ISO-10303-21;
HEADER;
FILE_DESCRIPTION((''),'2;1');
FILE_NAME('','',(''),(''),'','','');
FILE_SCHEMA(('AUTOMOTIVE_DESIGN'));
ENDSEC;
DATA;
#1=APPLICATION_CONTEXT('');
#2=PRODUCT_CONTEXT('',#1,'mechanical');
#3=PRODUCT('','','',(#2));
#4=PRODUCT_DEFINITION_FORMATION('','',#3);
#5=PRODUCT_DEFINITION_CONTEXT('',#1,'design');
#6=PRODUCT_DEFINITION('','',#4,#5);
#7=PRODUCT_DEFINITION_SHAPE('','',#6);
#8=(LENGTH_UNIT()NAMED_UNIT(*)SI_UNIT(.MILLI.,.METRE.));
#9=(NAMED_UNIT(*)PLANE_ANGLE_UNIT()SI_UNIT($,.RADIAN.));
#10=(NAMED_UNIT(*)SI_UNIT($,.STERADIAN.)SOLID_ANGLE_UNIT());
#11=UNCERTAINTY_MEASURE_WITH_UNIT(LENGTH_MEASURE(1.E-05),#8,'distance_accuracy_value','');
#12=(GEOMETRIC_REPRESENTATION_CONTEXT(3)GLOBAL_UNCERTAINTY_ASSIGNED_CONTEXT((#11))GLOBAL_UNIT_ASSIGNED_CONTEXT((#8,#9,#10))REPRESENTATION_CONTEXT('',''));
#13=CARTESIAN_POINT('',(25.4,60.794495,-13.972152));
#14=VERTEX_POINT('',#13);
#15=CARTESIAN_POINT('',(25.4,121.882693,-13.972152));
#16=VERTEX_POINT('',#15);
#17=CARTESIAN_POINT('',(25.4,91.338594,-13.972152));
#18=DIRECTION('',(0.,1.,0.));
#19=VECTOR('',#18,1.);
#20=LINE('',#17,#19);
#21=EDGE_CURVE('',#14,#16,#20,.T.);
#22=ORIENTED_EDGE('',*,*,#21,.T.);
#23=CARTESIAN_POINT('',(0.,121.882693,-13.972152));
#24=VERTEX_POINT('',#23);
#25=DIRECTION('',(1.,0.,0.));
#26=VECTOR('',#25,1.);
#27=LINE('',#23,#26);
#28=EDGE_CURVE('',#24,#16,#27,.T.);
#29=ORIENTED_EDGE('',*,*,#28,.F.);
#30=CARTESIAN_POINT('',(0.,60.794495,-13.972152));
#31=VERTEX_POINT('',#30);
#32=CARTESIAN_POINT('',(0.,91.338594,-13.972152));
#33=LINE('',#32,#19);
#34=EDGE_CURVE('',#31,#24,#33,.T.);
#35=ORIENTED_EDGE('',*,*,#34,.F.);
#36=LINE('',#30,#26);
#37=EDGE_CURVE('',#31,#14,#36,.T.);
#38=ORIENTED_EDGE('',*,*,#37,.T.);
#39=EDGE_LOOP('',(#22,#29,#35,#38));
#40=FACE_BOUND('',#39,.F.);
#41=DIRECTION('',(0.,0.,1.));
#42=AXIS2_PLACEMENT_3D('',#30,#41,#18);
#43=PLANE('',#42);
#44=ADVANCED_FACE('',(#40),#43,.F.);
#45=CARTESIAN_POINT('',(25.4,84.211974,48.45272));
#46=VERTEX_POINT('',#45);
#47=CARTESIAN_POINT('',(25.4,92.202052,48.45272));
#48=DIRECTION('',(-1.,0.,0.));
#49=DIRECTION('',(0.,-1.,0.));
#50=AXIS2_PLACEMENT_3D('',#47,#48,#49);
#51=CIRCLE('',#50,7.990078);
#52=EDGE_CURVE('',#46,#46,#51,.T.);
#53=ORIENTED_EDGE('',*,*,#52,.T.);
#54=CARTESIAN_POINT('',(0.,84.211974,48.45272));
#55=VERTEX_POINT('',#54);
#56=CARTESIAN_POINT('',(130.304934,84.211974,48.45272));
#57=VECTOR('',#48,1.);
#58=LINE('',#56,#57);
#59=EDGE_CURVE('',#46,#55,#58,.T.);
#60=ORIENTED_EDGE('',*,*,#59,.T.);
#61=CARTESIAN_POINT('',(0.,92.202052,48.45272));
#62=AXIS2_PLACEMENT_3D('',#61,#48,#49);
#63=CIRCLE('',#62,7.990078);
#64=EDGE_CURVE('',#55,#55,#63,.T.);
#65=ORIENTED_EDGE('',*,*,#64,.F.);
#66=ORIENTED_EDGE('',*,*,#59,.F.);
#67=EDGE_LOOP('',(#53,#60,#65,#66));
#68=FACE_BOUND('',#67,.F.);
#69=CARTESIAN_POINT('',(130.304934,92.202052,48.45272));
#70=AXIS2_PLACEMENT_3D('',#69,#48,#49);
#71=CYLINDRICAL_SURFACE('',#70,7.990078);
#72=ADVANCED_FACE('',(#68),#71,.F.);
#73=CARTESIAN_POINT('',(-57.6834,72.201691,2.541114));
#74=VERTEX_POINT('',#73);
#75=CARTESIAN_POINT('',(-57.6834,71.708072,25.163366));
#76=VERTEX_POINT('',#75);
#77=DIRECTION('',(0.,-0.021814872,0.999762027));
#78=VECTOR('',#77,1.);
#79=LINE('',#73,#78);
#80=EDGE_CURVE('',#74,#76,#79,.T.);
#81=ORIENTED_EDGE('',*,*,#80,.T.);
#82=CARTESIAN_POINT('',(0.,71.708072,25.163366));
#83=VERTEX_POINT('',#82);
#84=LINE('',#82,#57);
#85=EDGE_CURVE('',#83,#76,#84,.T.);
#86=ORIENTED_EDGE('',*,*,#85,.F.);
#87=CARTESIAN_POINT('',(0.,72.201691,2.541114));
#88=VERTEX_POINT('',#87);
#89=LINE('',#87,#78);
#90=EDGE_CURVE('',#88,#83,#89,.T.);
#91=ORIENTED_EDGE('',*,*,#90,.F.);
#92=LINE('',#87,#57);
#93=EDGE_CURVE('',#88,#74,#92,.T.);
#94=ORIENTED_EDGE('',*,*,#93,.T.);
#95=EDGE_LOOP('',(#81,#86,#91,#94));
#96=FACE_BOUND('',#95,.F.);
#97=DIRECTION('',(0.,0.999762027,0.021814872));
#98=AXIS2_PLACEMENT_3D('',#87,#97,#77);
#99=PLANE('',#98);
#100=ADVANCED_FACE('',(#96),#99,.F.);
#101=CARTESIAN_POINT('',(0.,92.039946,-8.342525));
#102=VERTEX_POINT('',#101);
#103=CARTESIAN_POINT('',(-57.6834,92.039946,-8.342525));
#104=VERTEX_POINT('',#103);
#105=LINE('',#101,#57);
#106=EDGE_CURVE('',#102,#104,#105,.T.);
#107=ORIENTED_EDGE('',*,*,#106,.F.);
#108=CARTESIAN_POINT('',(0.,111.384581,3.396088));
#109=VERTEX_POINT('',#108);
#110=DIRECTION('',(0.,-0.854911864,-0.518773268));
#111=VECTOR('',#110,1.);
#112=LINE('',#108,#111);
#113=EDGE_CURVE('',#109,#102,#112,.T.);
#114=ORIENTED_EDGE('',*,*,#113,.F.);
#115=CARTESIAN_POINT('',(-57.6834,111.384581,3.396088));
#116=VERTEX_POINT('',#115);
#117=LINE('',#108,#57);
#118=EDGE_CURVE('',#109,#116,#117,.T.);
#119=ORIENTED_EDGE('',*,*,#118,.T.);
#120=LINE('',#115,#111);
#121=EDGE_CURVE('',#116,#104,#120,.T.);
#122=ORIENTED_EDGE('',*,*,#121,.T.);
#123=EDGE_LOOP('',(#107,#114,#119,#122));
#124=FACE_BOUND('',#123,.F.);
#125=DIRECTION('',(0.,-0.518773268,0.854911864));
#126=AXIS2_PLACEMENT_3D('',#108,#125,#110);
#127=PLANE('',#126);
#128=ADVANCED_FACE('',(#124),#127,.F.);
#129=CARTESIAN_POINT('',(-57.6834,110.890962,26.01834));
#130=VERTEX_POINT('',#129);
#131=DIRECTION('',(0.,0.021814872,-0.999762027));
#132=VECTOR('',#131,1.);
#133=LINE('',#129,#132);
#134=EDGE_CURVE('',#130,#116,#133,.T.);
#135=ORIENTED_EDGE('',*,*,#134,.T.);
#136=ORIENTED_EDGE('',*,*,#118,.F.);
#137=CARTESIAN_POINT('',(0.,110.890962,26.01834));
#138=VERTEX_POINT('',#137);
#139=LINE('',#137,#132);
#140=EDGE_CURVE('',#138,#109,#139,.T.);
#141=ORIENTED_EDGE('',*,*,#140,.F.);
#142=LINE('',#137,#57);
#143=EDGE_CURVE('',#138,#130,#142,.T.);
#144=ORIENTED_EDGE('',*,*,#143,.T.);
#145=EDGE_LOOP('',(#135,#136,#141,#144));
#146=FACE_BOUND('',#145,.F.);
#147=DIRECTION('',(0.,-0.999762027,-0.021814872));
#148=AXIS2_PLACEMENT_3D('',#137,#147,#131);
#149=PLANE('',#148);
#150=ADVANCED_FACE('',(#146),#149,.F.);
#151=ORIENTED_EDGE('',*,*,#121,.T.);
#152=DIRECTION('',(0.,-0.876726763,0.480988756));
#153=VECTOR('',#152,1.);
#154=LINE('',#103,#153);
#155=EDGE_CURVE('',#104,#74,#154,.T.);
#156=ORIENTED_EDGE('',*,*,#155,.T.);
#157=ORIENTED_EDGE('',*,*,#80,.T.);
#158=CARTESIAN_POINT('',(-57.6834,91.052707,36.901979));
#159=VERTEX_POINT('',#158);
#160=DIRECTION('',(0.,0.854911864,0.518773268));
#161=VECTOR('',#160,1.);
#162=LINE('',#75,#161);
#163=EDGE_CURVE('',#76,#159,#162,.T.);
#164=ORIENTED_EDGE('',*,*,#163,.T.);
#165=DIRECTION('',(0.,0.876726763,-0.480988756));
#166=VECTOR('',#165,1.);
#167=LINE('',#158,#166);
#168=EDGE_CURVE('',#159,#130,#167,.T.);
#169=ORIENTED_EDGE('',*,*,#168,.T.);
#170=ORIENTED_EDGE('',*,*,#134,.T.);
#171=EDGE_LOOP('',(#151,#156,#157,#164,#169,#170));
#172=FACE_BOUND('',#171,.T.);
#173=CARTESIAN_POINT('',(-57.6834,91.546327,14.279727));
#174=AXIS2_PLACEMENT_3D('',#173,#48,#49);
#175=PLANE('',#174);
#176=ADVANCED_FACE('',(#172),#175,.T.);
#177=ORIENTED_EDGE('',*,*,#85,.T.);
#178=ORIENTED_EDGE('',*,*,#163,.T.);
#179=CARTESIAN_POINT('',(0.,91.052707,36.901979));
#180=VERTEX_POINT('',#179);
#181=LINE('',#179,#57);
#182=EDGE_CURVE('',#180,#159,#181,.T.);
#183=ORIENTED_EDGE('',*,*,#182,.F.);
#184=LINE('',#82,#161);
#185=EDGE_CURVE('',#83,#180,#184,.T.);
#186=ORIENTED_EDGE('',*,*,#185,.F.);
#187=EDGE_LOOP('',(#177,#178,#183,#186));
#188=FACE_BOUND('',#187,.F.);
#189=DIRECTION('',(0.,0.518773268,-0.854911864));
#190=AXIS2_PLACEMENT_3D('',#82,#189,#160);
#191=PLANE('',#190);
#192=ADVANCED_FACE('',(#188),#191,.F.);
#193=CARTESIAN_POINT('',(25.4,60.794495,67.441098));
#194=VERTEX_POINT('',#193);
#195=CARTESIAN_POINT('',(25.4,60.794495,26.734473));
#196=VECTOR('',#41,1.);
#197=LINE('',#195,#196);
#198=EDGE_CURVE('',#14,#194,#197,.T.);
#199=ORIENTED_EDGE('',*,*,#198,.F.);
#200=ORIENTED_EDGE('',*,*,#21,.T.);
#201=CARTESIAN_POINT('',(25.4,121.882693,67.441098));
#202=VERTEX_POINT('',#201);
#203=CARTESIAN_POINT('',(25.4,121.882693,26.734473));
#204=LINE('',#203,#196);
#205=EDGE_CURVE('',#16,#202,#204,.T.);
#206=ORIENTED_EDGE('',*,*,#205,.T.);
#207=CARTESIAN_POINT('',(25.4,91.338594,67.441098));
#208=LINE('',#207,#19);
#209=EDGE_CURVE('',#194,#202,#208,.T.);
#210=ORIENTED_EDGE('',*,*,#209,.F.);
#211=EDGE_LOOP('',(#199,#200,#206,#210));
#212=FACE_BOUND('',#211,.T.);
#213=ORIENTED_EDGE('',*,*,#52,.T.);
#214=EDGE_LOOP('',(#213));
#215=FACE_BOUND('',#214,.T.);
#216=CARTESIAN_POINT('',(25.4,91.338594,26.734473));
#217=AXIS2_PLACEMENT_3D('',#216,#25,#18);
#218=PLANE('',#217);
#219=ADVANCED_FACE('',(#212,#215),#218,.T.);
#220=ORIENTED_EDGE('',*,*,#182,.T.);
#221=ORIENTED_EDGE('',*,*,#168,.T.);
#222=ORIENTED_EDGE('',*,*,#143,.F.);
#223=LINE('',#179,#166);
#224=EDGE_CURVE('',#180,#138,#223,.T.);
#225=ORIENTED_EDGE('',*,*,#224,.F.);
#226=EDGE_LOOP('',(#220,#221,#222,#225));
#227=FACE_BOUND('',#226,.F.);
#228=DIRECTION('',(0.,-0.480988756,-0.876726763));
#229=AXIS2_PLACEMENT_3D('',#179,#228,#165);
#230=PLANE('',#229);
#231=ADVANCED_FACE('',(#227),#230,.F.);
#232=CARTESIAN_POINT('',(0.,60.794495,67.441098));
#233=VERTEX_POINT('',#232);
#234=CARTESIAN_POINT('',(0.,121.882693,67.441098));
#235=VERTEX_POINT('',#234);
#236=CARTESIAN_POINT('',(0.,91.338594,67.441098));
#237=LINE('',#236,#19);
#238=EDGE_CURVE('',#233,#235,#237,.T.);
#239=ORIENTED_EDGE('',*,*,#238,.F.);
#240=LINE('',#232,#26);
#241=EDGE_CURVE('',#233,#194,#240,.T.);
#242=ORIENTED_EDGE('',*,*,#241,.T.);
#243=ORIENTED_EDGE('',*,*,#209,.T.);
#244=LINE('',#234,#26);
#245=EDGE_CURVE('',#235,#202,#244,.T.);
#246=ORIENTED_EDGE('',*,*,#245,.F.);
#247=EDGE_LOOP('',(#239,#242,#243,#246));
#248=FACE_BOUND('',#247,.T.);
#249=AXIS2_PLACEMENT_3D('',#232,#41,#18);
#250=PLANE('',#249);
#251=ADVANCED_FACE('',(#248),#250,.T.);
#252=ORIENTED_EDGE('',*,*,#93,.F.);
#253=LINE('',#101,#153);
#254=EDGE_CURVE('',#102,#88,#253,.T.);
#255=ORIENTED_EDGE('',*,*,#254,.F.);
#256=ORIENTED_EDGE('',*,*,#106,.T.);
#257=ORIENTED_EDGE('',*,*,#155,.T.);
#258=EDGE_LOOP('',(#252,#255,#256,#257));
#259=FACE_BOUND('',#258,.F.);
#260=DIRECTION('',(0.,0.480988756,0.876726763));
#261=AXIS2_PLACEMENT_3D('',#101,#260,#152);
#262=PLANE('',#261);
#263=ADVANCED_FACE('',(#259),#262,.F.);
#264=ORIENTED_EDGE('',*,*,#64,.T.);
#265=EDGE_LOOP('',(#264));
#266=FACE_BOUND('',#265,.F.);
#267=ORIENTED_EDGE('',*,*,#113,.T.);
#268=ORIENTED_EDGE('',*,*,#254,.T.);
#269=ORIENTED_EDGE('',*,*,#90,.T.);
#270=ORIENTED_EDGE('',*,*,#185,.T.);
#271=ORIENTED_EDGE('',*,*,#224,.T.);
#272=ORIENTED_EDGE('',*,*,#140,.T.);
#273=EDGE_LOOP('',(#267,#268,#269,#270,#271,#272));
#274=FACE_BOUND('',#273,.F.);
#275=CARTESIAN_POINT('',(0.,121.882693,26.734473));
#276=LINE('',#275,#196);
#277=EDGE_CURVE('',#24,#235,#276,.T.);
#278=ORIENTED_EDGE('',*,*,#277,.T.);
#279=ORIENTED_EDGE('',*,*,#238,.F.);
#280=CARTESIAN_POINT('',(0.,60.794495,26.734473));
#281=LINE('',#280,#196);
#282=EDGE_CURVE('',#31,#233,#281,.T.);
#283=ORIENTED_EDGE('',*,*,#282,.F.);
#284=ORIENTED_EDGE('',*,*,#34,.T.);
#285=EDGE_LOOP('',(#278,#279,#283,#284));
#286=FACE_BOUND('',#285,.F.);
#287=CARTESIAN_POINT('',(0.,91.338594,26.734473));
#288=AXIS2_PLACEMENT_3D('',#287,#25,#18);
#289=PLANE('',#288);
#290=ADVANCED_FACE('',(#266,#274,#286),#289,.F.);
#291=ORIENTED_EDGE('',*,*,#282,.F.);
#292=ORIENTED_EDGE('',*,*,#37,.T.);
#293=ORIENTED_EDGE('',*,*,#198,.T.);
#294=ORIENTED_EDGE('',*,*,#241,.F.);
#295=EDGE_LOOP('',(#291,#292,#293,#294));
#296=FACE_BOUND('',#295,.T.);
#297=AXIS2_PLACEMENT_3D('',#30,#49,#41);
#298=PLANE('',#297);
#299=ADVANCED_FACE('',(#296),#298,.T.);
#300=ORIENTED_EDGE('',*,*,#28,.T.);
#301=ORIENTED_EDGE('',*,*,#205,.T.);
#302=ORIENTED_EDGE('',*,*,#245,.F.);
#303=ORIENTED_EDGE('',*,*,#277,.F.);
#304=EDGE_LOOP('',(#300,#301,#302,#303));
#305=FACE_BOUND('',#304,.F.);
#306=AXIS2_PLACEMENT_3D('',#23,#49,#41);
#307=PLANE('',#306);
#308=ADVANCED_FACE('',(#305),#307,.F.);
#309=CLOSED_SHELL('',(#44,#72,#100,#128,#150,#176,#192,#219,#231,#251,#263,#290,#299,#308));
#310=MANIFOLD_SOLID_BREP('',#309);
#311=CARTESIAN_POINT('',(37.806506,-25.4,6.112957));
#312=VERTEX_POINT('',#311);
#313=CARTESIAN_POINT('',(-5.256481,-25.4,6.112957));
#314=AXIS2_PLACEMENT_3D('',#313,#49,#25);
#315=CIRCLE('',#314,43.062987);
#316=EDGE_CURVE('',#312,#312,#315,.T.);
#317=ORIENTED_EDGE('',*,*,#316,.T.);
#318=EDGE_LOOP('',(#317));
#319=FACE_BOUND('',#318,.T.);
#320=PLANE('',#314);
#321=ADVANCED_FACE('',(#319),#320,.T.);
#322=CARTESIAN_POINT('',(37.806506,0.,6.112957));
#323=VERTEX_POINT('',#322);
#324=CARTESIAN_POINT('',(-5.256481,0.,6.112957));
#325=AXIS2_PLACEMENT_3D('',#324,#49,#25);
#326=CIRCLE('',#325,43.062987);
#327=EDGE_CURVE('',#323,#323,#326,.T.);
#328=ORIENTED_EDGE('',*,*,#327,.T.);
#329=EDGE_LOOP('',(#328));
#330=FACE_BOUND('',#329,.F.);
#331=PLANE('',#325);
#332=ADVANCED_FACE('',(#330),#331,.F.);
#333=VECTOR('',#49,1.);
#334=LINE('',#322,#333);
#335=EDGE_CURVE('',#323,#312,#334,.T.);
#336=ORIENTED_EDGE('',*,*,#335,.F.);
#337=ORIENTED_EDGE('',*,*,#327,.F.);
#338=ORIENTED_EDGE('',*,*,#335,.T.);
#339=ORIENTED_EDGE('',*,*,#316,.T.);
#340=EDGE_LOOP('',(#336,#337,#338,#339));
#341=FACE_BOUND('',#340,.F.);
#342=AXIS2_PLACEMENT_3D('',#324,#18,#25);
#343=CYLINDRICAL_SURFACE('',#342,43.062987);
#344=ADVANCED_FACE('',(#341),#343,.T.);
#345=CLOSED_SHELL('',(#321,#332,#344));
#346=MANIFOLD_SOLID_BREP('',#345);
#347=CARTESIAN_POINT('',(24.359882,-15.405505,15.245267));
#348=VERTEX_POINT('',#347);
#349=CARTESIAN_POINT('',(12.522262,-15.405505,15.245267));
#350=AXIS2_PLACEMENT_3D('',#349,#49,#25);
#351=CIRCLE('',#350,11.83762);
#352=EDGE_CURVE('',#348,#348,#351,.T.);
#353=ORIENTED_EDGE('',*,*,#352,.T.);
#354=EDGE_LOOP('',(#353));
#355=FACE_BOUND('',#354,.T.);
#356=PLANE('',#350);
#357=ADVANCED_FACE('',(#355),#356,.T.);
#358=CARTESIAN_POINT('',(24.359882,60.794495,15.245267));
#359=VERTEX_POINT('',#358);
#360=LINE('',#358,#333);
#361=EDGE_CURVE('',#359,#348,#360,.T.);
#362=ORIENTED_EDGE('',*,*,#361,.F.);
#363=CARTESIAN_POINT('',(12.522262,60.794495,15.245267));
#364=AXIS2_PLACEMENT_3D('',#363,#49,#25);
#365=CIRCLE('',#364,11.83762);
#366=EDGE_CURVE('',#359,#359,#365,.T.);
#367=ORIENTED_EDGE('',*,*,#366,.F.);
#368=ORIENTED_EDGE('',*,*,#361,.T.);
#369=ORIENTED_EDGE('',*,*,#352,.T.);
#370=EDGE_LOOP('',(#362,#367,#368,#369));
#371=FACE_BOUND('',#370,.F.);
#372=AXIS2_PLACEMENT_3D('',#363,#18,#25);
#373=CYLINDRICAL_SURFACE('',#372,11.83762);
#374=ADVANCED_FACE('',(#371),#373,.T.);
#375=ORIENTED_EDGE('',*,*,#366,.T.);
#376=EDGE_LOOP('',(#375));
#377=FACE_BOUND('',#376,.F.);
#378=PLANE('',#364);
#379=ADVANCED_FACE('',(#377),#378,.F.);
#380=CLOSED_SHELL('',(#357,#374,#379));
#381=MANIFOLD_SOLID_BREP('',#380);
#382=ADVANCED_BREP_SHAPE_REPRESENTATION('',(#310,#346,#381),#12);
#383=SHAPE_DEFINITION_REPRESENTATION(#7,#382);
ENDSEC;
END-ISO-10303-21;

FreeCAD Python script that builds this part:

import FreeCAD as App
import Part
import Sketcher

V = App.Vector
Q = App.Units.Quantity

doc = App.newDocument("Part")
body = doc.addObject("PartDesign::Body", "Body")

sketch1 = body.newObject("Sketcher::SketchObject", "Sketch")
sketch1.AttachmentSupport = (doc.getObject("XZ_Plane"), [""])
sketch1.MapMode = "FlatFace"
sketch1.addGeometry(Part.Circle(V(-5, 6, 0), V(0, 0, 1), 43), False)
sketch1.addConstraint([
    Sketcher.Constraint("Diameter", 0, Q("86.125974 mm")),
    Sketcher.Constraint("DistanceX", 0, 3, -1, 1, Q("5.256481 mm")),
    Sketcher.Constraint("DistanceY", -1, 1, 0, 3, Q("6.112957 mm")),
])
pad1 = body.newObject("PartDesign::Pad", "Pad")
pad1.Profile = sketch1
pad1.Length = Q("1 in")
body2 = doc.addObject("PartDesign::Body", "Body001")

sketch2 = body2.newObject("Sketcher::SketchObject", "Sketch001")
sketch2.AttachmentSupport = (doc.getObject("YZ_Plane001"), [""])
sketch2.MapMode = "FlatFace"
sketch2.addGeometry([
    Part.LineSegment(V(61, 67, 0), V(61, -14, 0)),
    Part.LineSegment(V(61, -14, 0), V(122, -14, 0)),
    Part.LineSegment(V(122, -14, 0), V(122, 67, 0)),
    Part.LineSegment(V(122, 67, 0), V(61, 67, 0)),
], False)
sketch2.addConstraint([
    Sketcher.Constraint("Coincident", 0, 2, 1, 1),
    Sketcher.Constraint("Coincident", 1, 2, 2, 1),
    Sketcher.Constraint("Coincident", 2, 2, 3, 1),
    Sketcher.Constraint("Coincident", 3, 2, 0, 1),
    Sketcher.Constraint("Vertical", 0),
    Sketcher.Constraint("Horizontal", 1),
    Sketcher.Constraint("Vertical", 2),
    Sketcher.Constraint("Horizontal", 3),
    Sketcher.Constraint("DistanceY", 0, 2, 0, 1, Q("81.41325 mm")),
    Sketcher.Constraint("DistanceX", 1, 1, 1, 2, Q("61.088197 mm")),
    Sketcher.Constraint("DistanceX", -1, 1, 0, 2, Q("60.794495 mm")),
    Sketcher.Constraint("DistanceY", 0, 2, -1, 1, Q("13.972152 mm")),
])
pad2 = body2.newObject("PartDesign::Pad", "Pad001")
pad2.Profile = sketch2
pad2.Length = Q("1 in")

sketch3 = body2.newObject("Sketcher::SketchObject", "Sketch002")
sketch3.AttachmentSupport = (doc.getObject("YZ_Plane001"), [""])
sketch3.MapMode = "FlatFace"
sketch3.AttachmentOffset = App.Placement(V(0, 0, 1 * 25.4), App.Rotation())
sketch3.addGeometry(Part.Circle(V(92, 48, 0), V(0, 0, 1), 8), False)
sketch3.addConstraint([
    Sketcher.Constraint("Diameter", 0, Q("15.980156 mm")),
    Sketcher.Constraint("DistanceX", -1, 1, 0, 3, Q("92.202052 mm")),
    Sketcher.Constraint("DistanceY", -1, 1, 0, 3, Q("48.45272 mm")),
])
doc.recompute()
hole = body2.newObject("PartDesign::Hole", "Hole")
hole.Profile = sketch3
hole.ThreadType = "None"
hole.Diameter = 15.980156
hole.DepthType = "ThroughAll"

sketch4 = body2.newObject("Sketcher::SketchObject", "Sketch003")
sketch4.AttachmentSupport = (doc.getObject("YZ_Plane001"), [""])
sketch4.MapMode = "FlatFace"
sketch4.addGeometry([
    Part.LineSegment(V(72, 25, 0), V(91, 37, 0)),
    Part.LineSegment(V(91, 37, 0), V(111, 26, 0)),
    Part.LineSegment(V(111, 26, 0), V(111, 3, 0)),
    Part.LineSegment(V(111, 3, 0), V(92, -8, 0)),
    Part.LineSegment(V(92, -8, 0), V(72, 3, 0)),
    Part.LineSegment(V(72, 3, 0), V(72, 25, 0)),
], False)
sketch4.addConstraint([
    Sketcher.Constraint("Coincident", 0, 2, 1, 1),
    Sketcher.Constraint("Coincident", 1, 2, 2, 1),
    Sketcher.Constraint("Coincident", 2, 2, 3, 1),
    Sketcher.Constraint("Coincident", 3, 2, 4, 1),
    Sketcher.Constraint("Coincident", 4, 2, 5, 1),
    Sketcher.Constraint("Coincident", 5, 2, 0, 1),
    Sketcher.Constraint("Parallel", 0, 3),
    Sketcher.Constraint("Parallel", 1, 4),
    Sketcher.Constraint("Parallel", 2, 5),
    Sketcher.Constraint("Equal", 0, 1),
    Sketcher.Constraint("Equal", 1, 2),
    Sketcher.Constraint("Equal", 2, 3),
    Sketcher.Constraint("Angle", 0, Q("31.250001 deg")),
    Sketcher.Constraint("Angle", 1, Q("-28.749999 deg")),
    Sketcher.Constraint("Angle", 2, Q("-88.750001 deg")),
    Sketcher.Constraint("DistanceX", 3, 2, 2, 2, Q("0.7615998 in")),
    Sketcher.Constraint("DistanceY", -1, 1, 0, 2, Q("36.901979 mm")),
    Sketcher.Constraint("DistanceX", -1, 1, 1, 2, Q("110.890962 mm")),
])
pad3 = body2.newObject("PartDesign::Pad", "Pad002")
pad3.Profile = sketch4
pad3.Length = Q("2.271 in")
pad3.Reversed = True
body3 = doc.addObject("PartDesign::Body", "Body002")

sketch5 = body3.newObject("Sketcher::SketchObject", "Sketch004")
sketch5.AttachmentSupport = (doc.getObject("XZ_Plane002"), [""])
sketch5.MapMode = "FlatFace"
sketch5.AttachmentOffset = App.Placement(V(0, 0, -60.794495), App.Rotation())
sketch5.addGeometry(Part.Circle(V(13, 15, 0), V(0, 0, 1), 12), False)
sketch5.addConstraint([
    Sketcher.Constraint("Diameter", 0, Q("23.67524 mm")),
    Sketcher.Constraint("DistanceX", -1, 1, 0, 3, Q("12.522262 mm")),
    Sketcher.Constraint("DistanceY", -1, 1, 0, 3, Q("15.245267 mm")),
])
pad4 = body3.newObject("PartDesign::Pad", "Pad003")
pad4.Profile = sketch5
pad4.Length = Q("3 in")

doc.recompute()
